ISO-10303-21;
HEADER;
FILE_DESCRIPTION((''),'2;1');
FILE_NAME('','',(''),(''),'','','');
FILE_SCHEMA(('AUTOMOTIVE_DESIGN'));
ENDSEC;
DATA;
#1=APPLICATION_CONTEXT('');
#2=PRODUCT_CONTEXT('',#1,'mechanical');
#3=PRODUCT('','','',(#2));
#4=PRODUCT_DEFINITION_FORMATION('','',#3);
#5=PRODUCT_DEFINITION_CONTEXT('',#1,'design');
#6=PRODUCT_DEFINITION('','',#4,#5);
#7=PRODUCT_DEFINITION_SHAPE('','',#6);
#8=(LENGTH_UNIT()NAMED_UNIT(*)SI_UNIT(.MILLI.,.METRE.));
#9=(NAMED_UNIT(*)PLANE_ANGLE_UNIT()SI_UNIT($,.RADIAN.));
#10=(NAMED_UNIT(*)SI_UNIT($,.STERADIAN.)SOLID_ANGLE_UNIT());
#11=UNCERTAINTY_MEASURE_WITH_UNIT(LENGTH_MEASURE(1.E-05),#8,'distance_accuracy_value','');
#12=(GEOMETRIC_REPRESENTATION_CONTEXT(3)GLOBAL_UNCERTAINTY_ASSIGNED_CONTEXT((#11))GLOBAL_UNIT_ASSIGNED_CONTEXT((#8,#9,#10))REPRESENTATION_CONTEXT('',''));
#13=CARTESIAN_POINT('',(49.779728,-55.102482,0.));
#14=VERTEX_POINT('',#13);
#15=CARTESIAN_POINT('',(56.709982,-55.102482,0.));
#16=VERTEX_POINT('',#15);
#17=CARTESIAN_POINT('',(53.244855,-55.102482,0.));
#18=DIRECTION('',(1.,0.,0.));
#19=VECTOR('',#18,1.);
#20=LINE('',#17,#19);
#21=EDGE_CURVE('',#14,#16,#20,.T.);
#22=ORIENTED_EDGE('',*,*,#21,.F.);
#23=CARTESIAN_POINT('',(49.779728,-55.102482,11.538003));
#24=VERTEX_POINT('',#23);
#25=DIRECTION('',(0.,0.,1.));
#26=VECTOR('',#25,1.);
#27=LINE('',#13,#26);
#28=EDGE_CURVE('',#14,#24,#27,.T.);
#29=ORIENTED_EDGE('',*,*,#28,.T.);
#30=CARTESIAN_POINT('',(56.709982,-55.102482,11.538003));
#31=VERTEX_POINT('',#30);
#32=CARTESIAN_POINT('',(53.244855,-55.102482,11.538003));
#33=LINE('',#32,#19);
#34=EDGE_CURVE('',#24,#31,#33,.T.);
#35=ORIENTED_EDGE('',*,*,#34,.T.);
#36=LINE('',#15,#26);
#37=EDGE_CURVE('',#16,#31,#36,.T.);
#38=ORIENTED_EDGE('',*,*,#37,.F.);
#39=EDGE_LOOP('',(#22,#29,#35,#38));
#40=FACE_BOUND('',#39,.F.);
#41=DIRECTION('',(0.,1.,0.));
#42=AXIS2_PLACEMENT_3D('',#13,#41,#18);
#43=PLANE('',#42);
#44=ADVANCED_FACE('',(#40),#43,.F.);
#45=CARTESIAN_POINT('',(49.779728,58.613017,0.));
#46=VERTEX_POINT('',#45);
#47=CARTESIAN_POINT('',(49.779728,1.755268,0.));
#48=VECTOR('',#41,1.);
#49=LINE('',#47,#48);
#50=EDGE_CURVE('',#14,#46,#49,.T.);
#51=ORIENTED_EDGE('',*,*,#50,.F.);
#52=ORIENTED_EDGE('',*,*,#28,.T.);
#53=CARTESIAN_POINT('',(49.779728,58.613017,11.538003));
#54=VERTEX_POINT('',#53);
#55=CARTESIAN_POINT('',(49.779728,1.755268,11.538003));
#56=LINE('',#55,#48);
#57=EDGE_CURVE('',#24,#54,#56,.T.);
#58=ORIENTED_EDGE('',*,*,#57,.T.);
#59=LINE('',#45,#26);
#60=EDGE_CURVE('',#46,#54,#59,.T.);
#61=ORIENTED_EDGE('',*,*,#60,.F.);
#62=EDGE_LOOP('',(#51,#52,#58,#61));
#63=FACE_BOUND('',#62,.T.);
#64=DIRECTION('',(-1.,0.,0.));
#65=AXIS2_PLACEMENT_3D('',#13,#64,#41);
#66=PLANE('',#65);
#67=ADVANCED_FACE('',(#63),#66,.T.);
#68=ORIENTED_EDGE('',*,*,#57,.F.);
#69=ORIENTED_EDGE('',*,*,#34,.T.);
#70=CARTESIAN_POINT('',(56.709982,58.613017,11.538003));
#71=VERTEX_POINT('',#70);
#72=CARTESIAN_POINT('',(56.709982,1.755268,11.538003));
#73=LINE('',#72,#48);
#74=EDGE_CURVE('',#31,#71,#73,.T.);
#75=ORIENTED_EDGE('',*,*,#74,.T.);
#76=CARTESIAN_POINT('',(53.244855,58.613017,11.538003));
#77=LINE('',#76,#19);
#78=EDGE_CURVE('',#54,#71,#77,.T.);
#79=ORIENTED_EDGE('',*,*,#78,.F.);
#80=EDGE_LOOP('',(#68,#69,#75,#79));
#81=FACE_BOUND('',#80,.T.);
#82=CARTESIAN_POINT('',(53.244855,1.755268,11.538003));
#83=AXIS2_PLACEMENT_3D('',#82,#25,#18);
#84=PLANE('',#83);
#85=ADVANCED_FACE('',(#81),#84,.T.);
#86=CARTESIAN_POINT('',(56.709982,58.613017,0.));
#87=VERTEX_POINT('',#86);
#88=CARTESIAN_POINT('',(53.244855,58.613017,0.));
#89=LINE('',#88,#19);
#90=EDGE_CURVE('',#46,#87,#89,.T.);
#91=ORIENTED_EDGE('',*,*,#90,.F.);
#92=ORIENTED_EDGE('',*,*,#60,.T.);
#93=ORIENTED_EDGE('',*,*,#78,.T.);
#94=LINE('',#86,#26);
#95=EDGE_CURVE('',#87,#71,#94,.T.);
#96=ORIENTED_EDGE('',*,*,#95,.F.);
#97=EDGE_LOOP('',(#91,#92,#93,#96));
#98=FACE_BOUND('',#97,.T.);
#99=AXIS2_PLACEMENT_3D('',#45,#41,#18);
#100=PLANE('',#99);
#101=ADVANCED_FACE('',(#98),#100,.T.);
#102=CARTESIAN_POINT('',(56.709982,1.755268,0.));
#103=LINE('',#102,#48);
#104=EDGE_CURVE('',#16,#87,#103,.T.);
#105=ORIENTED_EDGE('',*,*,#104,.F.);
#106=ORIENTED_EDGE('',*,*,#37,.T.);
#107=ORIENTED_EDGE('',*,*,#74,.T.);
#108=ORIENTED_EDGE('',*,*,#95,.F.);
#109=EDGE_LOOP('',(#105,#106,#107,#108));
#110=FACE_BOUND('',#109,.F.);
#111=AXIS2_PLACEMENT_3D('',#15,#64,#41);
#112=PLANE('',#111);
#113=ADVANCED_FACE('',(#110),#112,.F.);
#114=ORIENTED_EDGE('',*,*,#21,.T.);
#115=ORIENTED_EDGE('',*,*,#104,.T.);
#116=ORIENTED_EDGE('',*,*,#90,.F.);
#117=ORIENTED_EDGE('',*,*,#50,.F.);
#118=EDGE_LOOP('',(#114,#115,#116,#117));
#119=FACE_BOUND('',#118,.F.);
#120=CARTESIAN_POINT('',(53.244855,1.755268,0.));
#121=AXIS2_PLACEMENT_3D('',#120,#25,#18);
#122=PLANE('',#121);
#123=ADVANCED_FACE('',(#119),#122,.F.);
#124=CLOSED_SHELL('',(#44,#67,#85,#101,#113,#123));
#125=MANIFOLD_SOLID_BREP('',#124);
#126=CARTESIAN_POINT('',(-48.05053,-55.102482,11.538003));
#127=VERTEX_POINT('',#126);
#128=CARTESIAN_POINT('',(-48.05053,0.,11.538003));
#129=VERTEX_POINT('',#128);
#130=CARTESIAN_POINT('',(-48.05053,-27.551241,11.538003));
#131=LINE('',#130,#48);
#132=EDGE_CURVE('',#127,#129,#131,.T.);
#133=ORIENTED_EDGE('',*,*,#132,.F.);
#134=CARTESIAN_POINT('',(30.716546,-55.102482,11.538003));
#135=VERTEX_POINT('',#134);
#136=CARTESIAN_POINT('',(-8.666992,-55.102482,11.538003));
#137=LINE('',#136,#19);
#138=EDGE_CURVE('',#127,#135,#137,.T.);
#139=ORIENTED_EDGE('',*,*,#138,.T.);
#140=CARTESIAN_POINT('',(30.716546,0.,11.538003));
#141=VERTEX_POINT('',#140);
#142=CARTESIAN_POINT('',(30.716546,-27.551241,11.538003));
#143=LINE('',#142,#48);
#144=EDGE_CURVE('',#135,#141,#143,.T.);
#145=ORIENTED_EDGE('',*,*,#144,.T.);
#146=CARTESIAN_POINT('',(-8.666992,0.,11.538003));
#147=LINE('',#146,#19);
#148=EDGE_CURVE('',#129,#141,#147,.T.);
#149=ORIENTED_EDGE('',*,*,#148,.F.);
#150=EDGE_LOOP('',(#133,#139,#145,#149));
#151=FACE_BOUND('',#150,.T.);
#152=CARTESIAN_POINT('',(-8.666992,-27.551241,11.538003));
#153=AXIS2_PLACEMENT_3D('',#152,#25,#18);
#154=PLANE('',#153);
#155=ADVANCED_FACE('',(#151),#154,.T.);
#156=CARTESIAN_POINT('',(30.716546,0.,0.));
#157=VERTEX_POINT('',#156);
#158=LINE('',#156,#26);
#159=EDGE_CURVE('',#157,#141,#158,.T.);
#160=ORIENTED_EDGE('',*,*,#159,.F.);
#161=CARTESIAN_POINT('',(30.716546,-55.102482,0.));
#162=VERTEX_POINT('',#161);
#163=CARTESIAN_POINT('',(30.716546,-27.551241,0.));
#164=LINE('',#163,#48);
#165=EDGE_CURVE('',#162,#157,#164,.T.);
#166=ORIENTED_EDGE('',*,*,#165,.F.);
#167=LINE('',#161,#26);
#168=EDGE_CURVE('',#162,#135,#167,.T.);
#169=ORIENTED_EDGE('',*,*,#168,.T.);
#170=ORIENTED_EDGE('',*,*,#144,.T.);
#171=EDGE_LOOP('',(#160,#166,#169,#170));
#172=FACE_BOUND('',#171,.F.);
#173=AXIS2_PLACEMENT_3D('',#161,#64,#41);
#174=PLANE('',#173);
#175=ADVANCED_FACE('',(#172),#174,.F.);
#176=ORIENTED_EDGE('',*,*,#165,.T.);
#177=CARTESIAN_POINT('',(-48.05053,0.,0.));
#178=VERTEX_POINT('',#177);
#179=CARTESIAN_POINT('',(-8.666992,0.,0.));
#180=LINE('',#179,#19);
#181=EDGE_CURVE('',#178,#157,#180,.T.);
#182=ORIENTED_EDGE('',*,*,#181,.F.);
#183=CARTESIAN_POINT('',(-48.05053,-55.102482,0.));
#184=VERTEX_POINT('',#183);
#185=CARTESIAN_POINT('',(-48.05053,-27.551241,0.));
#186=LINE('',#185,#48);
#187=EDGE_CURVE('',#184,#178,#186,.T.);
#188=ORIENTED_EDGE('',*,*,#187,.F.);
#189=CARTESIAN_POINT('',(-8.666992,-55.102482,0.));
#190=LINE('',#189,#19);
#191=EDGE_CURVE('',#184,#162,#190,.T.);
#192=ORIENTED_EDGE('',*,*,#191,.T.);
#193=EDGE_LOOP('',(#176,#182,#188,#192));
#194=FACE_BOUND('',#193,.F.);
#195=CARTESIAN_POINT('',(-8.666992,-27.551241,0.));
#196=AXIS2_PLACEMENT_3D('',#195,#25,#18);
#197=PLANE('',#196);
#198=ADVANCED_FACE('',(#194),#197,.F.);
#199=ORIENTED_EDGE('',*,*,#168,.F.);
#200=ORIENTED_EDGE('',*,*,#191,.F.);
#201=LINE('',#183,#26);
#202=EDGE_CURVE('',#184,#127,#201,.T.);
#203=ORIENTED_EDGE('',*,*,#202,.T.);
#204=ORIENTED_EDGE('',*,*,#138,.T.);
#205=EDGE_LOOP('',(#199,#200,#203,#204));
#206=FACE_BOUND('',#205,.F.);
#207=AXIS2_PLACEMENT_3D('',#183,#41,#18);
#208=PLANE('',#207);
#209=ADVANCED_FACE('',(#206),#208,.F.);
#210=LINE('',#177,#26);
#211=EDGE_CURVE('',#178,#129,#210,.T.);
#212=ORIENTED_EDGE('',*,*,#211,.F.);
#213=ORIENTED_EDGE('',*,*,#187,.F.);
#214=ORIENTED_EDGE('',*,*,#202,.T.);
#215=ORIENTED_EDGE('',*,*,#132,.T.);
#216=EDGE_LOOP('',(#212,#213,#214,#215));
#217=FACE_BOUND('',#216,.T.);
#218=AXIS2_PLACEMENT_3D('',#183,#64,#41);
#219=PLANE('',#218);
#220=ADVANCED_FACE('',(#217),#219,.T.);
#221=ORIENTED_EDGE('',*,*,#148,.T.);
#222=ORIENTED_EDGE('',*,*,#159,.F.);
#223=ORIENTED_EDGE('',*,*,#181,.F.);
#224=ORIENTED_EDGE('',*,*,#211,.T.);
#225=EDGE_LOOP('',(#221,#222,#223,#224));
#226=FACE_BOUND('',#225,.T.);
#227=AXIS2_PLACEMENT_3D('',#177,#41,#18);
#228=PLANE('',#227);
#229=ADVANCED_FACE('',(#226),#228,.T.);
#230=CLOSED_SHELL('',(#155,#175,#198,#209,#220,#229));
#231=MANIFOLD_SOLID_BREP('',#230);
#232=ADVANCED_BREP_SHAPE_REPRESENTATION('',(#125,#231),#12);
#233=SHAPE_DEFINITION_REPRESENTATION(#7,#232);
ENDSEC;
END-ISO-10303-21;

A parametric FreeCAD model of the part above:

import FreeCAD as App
import Part
import Sketcher

V = App.Vector

doc = App.newDocument("Part")
body = doc.addObject("PartDesign::Body", "Body")
body.AllowCompound = True

# Sketch on XY plane
sketch1 = body.newObject("Sketcher::SketchObject", "Sketch")
sketch1.AttachmentSupport = (doc.getObject("XY_Plane"), [""])
sketch1.MapMode = "FlatFace"
sketch1.addGeometry([
    Part.LineSegment(V(50, 59, 0), V(50, -55, 0)),  # 0
    Part.LineSegment(V(50, -55, 0), V(57, -55, 0)),  # 1
    Part.LineSegment(V(57, -55, 0), V(57, 59, 0)),  # 2
    Part.LineSegment(V(57, 59, 0), V(50, 59, 0)),  # 3
    Part.LineSegment(V(-48, 0, 0), V(-48, -55, 0)),  # 4
    Part.LineSegment(V(-48, -55, 0), V(31, -55, 0)),  # 5
    Part.LineSegment(V(31, -55, 0), V(31, 0, 0)),  # 6
    Part.LineSegment(V(31, 0, 0), V(-48, 0, 0)),  # 7
], False)
sketch1.addConstraint([
    Sketcher.Constraint("Coincident", 0, 2, 1, 1),
    Sketcher.Constraint("Coincident", 1, 2, 2, 1),
    Sketcher.Constraint("Coincident", 2, 2, 3, 1),
    Sketcher.Constraint("Coincident", 3, 2, 0, 1),
    Sketcher.Constraint("Coincident", 4, 2, 5, 1),
    Sketcher.Constraint("Coincident", 5, 2, 6, 1),
    Sketcher.Constraint("Coincident", 6, 2, 7, 1),
    Sketcher.Constraint("Coincident", 7, 2, 4, 1),
    Sketcher.Constraint("Vertical", 0),
    Sketcher.Constraint("Horizontal", 1),
    Sketcher.Constraint("Vertical", 2),
    Sketcher.Constraint("Horizontal", 3),
    Sketcher.Constraint("Vertical", 4),
    Sketcher.Constraint("Horizontal", 5),
    Sketcher.Constraint("Vertical", 6),
    Sketcher.Constraint("Horizontal", 7),
    Sketcher.Constraint("PointOnObject", 6, 2, -1),
    Sketcher.Constraint("Horizontal", 1, 2, 4, 2),
    Sketcher.Constraint("DistanceY", 0, 2, 0, 1, 113.715499),
    Sketcher.Constraint("DistanceX", 1, 1, 1, 2, 6.930254),
    Sketcher.Constraint("DistanceX", 5, 1, 5, 2, 78.767076),
    Sketcher.Constraint("DistanceY", 4, 2, 4, 1, 55.102482),
    Sketcher.Constraint("DistanceX", -1, 1, 1, 2, 56.709982),
    Sketcher.Constraint("DistanceX", 4, 2, -1, 1, 48.05053),
])
pad1 = body.newObject("PartDesign::Pad", "Pad")
pad1.Profile = sketch1
pad1.Length = 11.538003

doc.recompute()
